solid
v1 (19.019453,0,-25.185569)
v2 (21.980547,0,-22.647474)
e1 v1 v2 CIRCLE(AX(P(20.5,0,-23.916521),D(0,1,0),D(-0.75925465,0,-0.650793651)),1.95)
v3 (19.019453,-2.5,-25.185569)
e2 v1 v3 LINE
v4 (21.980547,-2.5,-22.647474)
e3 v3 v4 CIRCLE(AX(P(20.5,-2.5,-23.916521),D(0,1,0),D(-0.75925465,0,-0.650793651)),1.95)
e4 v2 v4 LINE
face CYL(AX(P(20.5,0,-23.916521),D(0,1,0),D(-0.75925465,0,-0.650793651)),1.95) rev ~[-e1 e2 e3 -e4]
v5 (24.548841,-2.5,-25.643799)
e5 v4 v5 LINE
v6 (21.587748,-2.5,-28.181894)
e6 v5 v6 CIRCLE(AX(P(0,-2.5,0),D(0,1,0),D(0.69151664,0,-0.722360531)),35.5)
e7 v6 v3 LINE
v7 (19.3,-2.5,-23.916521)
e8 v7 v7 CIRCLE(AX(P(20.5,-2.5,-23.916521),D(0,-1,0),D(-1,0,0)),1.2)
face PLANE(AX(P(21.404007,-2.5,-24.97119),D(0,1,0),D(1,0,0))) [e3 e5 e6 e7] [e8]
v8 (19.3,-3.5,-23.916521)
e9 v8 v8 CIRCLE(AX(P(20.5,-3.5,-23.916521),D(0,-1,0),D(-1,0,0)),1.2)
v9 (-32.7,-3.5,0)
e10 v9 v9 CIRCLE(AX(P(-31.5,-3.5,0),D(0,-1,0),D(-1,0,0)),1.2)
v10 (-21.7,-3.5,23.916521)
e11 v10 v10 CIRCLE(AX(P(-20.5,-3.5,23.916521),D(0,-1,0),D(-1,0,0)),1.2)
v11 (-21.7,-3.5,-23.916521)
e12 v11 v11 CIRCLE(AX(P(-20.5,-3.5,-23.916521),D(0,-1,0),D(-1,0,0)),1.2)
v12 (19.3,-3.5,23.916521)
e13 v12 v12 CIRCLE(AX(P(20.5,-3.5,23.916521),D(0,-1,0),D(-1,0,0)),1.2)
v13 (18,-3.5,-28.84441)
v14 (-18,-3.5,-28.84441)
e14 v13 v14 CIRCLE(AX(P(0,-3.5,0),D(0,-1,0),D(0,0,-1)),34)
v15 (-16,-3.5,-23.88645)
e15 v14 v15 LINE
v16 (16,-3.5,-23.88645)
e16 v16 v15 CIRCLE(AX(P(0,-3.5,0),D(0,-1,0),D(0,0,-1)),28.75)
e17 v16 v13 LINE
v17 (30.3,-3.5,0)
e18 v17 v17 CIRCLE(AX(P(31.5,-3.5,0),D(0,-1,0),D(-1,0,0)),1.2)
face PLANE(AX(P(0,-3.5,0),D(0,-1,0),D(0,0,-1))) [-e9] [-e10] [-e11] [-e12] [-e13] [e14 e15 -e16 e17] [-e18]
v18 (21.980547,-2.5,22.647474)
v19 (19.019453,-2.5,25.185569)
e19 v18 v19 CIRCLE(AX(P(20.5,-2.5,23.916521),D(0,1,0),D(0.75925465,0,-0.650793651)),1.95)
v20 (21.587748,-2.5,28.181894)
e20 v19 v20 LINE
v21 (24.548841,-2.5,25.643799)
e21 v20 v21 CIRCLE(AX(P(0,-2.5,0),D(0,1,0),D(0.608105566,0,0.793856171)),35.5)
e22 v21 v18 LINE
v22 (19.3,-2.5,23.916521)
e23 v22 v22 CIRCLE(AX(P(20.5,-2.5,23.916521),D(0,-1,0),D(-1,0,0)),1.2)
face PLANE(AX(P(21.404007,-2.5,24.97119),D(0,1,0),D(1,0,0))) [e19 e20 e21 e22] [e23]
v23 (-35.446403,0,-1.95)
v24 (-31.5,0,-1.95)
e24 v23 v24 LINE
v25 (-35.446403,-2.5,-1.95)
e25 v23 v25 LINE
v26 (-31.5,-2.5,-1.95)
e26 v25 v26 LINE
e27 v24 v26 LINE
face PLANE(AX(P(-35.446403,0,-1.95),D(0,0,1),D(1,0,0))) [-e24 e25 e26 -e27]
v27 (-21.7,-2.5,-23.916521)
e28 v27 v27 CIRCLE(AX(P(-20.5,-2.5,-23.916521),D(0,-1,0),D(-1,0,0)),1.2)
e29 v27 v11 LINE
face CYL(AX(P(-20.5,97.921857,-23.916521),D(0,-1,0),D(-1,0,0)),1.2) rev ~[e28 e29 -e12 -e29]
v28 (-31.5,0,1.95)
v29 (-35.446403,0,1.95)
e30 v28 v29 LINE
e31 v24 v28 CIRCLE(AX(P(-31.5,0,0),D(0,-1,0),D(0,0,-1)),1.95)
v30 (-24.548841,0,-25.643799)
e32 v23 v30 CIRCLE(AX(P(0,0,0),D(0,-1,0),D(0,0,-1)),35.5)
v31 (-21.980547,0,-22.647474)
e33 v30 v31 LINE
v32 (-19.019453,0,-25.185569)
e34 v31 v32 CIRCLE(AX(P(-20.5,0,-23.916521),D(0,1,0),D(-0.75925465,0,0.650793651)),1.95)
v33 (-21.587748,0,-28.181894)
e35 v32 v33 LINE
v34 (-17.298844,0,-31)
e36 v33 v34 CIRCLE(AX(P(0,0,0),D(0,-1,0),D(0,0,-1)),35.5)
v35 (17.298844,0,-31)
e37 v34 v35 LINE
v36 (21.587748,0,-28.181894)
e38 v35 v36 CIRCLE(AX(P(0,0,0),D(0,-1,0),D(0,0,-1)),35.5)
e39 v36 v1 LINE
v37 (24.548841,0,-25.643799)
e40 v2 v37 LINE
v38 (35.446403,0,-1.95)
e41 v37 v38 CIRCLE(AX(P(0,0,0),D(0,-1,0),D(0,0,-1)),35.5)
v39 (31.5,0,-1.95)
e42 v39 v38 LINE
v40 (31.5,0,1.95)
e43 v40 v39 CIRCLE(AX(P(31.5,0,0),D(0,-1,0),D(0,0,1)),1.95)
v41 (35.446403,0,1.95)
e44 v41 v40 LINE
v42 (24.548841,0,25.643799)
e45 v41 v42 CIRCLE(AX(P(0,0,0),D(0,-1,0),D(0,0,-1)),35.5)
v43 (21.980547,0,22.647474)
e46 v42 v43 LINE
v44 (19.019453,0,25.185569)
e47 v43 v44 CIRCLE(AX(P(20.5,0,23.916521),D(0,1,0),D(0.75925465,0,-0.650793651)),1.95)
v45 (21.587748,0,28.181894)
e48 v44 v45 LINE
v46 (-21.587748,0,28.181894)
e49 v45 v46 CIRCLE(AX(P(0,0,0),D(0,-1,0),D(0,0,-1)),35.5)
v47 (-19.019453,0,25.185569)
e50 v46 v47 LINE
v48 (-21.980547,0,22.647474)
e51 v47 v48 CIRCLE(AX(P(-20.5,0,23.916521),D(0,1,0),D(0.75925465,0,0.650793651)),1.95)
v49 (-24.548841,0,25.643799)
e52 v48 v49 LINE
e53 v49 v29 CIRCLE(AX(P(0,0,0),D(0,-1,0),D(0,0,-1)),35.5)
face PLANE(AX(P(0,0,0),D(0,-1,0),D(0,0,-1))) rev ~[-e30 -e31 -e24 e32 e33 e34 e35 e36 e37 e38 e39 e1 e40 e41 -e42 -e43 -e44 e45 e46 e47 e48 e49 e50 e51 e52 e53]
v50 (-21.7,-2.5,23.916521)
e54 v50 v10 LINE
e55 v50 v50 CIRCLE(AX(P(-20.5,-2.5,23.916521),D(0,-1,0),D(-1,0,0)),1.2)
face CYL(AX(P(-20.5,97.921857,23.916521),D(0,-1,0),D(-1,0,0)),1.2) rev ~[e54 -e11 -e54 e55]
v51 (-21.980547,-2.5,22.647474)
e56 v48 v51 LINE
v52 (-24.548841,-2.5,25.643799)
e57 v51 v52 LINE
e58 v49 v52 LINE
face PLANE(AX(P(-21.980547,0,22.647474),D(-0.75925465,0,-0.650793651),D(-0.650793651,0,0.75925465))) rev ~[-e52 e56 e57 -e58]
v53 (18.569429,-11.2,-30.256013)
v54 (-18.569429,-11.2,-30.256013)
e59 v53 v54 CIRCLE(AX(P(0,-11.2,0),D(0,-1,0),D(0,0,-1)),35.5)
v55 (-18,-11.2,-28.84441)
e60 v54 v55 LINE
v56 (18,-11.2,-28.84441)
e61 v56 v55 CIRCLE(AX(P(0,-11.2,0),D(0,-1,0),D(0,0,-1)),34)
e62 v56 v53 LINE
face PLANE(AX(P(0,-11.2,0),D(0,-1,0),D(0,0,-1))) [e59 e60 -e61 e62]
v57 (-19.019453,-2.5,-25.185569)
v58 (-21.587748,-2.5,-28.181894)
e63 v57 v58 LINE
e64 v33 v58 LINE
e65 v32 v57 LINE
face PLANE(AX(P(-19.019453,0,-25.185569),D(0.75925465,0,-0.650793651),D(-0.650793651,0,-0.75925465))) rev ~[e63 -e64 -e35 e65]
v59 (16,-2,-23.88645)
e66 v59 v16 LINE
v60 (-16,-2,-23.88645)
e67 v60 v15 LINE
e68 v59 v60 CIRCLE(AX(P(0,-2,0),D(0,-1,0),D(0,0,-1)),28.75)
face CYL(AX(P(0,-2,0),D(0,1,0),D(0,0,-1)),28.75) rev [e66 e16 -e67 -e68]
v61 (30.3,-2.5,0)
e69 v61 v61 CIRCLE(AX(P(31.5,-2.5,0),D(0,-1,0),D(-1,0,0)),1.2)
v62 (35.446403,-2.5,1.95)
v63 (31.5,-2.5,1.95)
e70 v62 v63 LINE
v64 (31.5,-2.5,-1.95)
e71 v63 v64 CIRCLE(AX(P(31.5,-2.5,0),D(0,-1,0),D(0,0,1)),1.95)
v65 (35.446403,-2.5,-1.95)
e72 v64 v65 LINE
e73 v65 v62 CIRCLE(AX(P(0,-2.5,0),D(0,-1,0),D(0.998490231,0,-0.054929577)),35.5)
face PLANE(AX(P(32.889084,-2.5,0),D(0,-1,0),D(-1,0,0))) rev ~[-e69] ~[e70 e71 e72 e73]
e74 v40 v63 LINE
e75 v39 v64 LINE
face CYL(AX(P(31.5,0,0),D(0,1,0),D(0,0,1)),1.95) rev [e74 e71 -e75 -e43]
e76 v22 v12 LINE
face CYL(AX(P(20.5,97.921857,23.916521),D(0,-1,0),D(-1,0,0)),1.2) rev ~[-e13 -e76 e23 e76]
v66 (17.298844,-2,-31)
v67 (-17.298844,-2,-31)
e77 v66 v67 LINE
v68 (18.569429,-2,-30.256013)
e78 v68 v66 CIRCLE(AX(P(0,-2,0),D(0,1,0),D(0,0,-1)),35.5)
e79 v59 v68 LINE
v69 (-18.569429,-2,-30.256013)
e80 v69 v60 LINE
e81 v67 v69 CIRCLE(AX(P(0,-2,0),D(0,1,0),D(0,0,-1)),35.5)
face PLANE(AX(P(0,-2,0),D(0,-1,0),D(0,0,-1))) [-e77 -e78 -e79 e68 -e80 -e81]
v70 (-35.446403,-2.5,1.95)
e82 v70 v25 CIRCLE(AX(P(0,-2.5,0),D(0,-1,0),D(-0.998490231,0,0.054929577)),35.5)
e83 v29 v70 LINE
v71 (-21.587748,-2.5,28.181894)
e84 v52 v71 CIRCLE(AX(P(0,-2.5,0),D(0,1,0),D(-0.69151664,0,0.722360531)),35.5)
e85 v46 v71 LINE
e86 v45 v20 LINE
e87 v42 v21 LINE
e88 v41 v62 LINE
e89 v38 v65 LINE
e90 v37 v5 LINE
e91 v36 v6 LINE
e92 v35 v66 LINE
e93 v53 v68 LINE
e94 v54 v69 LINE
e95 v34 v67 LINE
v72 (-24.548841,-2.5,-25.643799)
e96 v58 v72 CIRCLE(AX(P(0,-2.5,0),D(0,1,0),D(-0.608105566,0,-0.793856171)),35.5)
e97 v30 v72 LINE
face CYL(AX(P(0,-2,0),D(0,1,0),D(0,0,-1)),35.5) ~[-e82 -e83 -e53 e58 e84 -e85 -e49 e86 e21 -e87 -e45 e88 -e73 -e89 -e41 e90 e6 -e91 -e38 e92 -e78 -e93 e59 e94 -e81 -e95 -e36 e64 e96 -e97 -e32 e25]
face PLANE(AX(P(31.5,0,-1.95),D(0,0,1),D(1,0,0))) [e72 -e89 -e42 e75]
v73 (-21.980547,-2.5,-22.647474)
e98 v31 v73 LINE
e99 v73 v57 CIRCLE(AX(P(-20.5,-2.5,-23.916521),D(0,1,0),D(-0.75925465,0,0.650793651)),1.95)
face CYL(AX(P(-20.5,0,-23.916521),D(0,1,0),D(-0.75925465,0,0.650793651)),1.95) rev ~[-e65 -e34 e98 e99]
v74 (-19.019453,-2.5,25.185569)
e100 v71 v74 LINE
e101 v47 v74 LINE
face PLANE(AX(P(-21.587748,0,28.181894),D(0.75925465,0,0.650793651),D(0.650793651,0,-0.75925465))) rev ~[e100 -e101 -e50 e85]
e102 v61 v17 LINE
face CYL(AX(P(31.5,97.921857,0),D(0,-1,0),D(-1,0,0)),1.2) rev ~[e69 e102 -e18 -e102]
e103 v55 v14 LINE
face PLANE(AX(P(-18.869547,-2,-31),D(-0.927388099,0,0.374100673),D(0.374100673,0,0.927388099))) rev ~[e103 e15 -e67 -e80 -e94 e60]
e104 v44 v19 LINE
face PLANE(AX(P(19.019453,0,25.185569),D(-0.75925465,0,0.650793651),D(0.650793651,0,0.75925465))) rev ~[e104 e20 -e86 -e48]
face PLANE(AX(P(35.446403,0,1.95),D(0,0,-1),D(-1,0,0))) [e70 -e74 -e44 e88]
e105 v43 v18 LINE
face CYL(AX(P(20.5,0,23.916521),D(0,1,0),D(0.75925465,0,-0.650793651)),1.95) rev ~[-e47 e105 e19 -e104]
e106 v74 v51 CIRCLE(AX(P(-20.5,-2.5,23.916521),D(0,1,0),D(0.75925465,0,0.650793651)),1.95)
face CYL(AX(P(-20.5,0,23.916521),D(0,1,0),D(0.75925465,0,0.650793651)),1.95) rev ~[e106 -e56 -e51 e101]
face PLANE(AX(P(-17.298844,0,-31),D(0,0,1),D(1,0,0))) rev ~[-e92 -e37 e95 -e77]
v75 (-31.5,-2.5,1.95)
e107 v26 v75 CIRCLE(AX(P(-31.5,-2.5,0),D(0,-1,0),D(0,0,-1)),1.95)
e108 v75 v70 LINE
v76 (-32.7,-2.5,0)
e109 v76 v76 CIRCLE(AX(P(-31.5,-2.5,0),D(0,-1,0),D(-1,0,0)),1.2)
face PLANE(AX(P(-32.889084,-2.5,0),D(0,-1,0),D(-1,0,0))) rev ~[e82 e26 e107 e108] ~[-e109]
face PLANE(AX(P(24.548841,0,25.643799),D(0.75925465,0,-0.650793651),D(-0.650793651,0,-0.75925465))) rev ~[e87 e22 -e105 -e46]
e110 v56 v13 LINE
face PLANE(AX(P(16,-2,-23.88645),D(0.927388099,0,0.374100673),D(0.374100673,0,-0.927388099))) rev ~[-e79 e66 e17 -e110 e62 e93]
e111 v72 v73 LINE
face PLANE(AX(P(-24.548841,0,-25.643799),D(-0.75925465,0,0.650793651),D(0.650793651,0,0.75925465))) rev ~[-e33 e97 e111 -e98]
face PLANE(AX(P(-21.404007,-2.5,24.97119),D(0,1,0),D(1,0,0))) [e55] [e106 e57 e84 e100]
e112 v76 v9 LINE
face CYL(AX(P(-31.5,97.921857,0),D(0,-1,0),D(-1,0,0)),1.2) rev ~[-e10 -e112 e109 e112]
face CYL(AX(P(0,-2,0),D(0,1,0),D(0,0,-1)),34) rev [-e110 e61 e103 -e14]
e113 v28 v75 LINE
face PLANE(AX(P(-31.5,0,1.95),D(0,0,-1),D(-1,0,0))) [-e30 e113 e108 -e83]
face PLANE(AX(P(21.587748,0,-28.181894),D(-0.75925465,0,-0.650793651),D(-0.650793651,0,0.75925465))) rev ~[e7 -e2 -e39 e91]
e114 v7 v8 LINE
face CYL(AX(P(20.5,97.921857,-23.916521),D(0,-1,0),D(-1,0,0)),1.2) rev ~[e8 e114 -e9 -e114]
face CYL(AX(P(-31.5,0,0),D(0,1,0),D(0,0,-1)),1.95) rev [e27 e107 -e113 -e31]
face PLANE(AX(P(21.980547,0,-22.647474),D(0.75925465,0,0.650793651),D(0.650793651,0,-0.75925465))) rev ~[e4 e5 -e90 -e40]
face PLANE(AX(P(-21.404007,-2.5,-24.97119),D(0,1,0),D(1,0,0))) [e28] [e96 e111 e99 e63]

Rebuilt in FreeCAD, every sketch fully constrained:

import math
import FreeCAD as App
import Part
import Sketcher
Q = App.Units.Quantity

doc = App.newDocument("Part")
body = doc.addObject("PartDesign::Body", "Body")

sketch1 = body.newObject("Sketcher::SketchObject", "Sketch")
sketch1.AttachmentSupport = (doc.getObject("XZ_Plane"), [""])
sketch1.MapMode = "FlatFace"
sketch1.addGeometry(Part.Circle(App.Vector(0, 0, 0), App.Vector(0, 0, 1), 36), False)
sketch1.addConstraint([
    Sketcher.Constraint("Coincident", 0, 3, -1, 1),
    Sketcher.Constraint("Diameter", 0, Q("71 mm")),
])
pad1 = body.newObject("PartDesign::Pad", "Pad")
pad1.Profile = sketch1
pad1.Length = 2

sketch2 = body.newObject("Sketcher::SketchObject", "Sketch001")
sketch2.AttachmentSupport = (doc.getObject("XZ_Plane"), [""])
sketch2.MapMode = "FlatFace"
sketch2.AttachmentOffset = App.Placement(App.Vector(0, 0, 2), App.Rotation())
sketch2.addGeometry([
    Part.Circle(App.Vector(0, 0, 0), App.Vector(0, 0, 1), 36),
    Part.Circle(App.Vector(0, 0, 0), App.Vector(0, 0, 1), 34),
], False)
sketch2.addConstraint([
    Sketcher.Constraint("Coincident", 0, 3, -1, 1),
    Sketcher.Constraint("Coincident", 1, 3, -1, 1),
    Sketcher.Constraint("Diameter", 0, Q("71 mm")),
    Sketcher.Constraint("Diameter", 1, Q("68 mm")),
])
pad2 = body.newObject("PartDesign::Pad", "Pad001")
pad2.Profile = sketch2
pad2.Length = 9.2

sketch3 = body.newObject("Sketcher::SketchObject", "Sketch002")
sketch3.AttachmentSupport = (doc.getObject("XZ_Plane"), [""])
sketch3.MapMode = "FlatFace"
sketch3.AttachmentOffset = App.Placement(App.Vector(0, 0, 2), App.Rotation())
sketch3.addGeometry([
    Part.Circle(App.Vector(0, 0, 0), App.Vector(0, 0, 1), 34),
    Part.Circle(App.Vector(0, 0, 0), App.Vector(0, 0, 1), 29),
], False)
sketch3.addConstraint([
    Sketcher.Constraint("Coincident", 0, 3, -1, 1),
    Sketcher.Constraint("Coincident", 1, 3, -1, 1),
    Sketcher.Constraint("Diameter", 0, Q("68 mm")),
    Sketcher.Constraint("Diameter", 1, Q("57.5 mm")),
])
pad3 = body.newObject("PartDesign::Pad", "Pad002")
pad3.Profile = sketch3
pad3.Length = 1.5

sketch4 = body.newObject("Sketcher::SketchObject", "Sketch003")
sketch4.AttachmentSupport = (doc.getObject("XZ_Plane"), [""])
sketch4.MapMode = "FlatFace"
sketch4.addGeometry([
    Part.LineSegment(App.Vector(-17, -31, 0), App.Vector(17, -31, 0)),
    Part.ArcOfCircle(Part.Circle(App.Vector(0, 0, 0), App.Vector(0, 0, 1), 36), math.radians(-119), math.radians(-61)),
], False)
sketch4.addConstraint([
    Sketcher.Constraint("Coincident", 0, 1, 1, 1),
    Sketcher.Constraint("Coincident", 1, 2, 0, 2),
    Sketcher.Constraint("Horizontal", 0),
    Sketcher.Constraint("Coincident", 1, 3, -1, 1),
    Sketcher.Constraint("Radius", 1, Q("35.5 mm")),
    Sketcher.Constraint("DistanceY", 0, 1, -1, 1, Q("31 mm")),
])
pocket1 = body.newObject("PartDesign::Pocket", "Pocket")
pocket1.Profile = sketch4
pocket1.Length = 11.2
pocket1.Reversed = True

sketch5 = body.newObject("Sketcher::SketchObject", "Sketch004")
sketch5.AttachmentSupport = (doc.getObject("XZ_Plane"), [""])
sketch5.MapMode = "FlatFace"
sketch5.AttachmentOffset = App.Placement(App.Vector(0, 0, 2), App.Rotation())
sketch5.addGeometry([
    Part.LineSegment(App.Vector(-16, -24, 0), App.Vector(-19, -31, 0)),
    Part.LineSegment(App.Vector(-19, -31, 0), App.Vector(19, -31, 0)),
    Part.LineSegment(App.Vector(19, -31, 0), App.Vector(16, -24, 0)),
    Part.LineSegment(App.Vector(16, -24, 0), App.Vector(-16, -24, 0)),
], False)
sketch5.addConstraint([
    Sketcher.Constraint("Coincident", 0, 2, 1, 1),
    Sketcher.Constraint("Coincident", 1, 2, 2, 1),
    Sketcher.Constraint("Coincident", 2, 2, 3, 1),
    Sketcher.Constraint("Coincident", 3, 2, 0, 1),
    Sketcher.Constraint("Horizontal", 1),
    Sketcher.Constraint("Horizontal", 3),
    Sketcher.Constraint("Equal", 0, 2),
    Sketcher.Constraint("DistanceX", 3, 2, 3, 1, Q("32 mm")),
    Sketcher.Constraint("DistanceY", 0, 2, -1, 1, Q("31 mm")),
    Sketcher.Constraint("DistanceX", -1, 1, 2, 2, Q("16 mm")),
    Sketcher.Constraint("Distance", 0, Q("7.670521 mm")),
    Sketcher.Constraint("DistanceX", 1, 1, 1, 2, Q("37.739094 mm")),
])
pocket2 = body.newObject("PartDesign::Pocket", "Pocket001")
pocket2.Profile = sketch5
pocket2.Length = 9.2
pocket2.Reversed = True

sketch6 = body.newObject("Sketcher::SketchObject", "Sketch005")
sketch6.AttachmentSupport = (doc.getObject("XZ_Plane"), [""])
sketch6.MapMode = "FlatFace"
sketch6.addGeometry([
    Part.Circle(App.Vector(-20.5, -23.9, 0), App.Vector(0, 0, 1), 1.2),
    Part.Circle(App.Vector(-31.5, 0, 0), App.Vector(0, 0, 1), 1.2),
    Part.Circle(App.Vector(-20.5, 23.9, 0), App.Vector(0, 0, 1), 1.2),
    Part.Circle(App.Vector(31.5, 0, 0), App.Vector(0, 0, 1), 1.2),
    Part.Circle(App.Vector(20.5, -23.9, 0), App.Vector(0, 0, 1), 1.2),
    Part.Circle(App.Vector(20.5, 23.9, 0), App.Vector(0, 0, 1), 1.2),
], False)
sketch6.addConstraint([
    Sketcher.Constraint("Equal", 0, 1),
    Sketcher.Constraint("Equal", 1, 2),
    Sketcher.Constraint("Equal", 2, 3),
    Sketcher.Constraint("Equal", 3, 4),
    Sketcher.Constraint("Equal", 4, 5),
    Sketcher.Constraint("Symmetric", 1, 3, 3, 3, -1, 1),
    Sketcher.Constraint("Symmetric", 2, 3, 4, 3, -1, 1),
    Sketcher.Constraint("Symmetric", 0, 3, 5, 3, -1, 1),
    Sketcher.Constraint("Symmetric", 0, 3, 4, 3, -2),
    Sketcher.Constraint("PointOnObject", 1, 3, -1),
    Sketcher.Constraint("Diameter", 0, Q("2.4 mm")),
    Sketcher.Constraint("DistanceX", 1, 3, 0, 3, Q("11 mm")),
    Sketcher.Constraint("DistanceX", 0, 3, 3, 3, Q("52 mm")),
    Sketcher.Constraint("DistanceY", 0, 3, -1, 1, Q("23.916521 mm")),
])
doc.recompute()
hole = body.newObject("PartDesign::Hole", "Hole")
hole.Profile = sketch6
hole.ThreadType = "None"
hole.Diameter = 2.4
hole.DepthType = "ThroughAll"
hole.Reversed = True

sketch7 = body.newObject("Sketcher::SketchObject", "Sketch006")
sketch7.AttachmentSupport = (doc.getObject("XZ_Plane"), [""])
sketch7.MapMode = "FlatFace"
sketch7.addGeometry([
    Part.LineSegment(App.Vector(-31.5, -1.9, 0), App.Vector(-35.4, -1.9, 0)),
    Part.ArcOfCircle(Part.Circle(App.Vector(0, 0, 0), App.Vector(0, 0, 1), 35.5), math.radians(176.85), math.radians(183.15)),
    Part.LineSegment(App.Vector(-35.4, 1.9, 0), App.Vector(-31.5, 1.9, 0)),
    Part.ArcOfCircle(Part.Circle(App.Vector(-31.5, 0, 0), App.Vector(0, 0, 1), 1.9), math.radians(-90), math.radians(90)),
    Part.Circle(App.Vector(-31.5, 0, 0), App.Vector(0, 0, 1), 1.2),
    Part.LineSegment(App.Vector(-24.5, -25.6, 0), App.Vector(-22, -22.6, 0)),
    Part.ArcOfCircle(Part.Circle(App.Vector(-20.5, -23.9, 0), App.Vector(0, 0, 1), 1.9), math.radians(-41), math.radians(139)),
    Part.LineSegment(App.Vector(-19, -25.2, 0), App.Vector(-21.6, -28.2, 0)),
    Part.ArcOfCircle(Part.Circle(App.Vector(0, 0, 0), App.Vector(0, 0, 1), 35.5), math.radians(-133.75), math.radians(-127.45)),
    Part.Circle(App.Vector(-20.5, -23.9, 0), App.Vector(0, 0, 1), 1.2),
    Part.LineSegment(App.Vector(-21.6, 28.2, 0), App.Vector(-19, 25.2, 0)),
    Part.ArcOfCircle(Part.Circle(App.Vector(-20.5, 23.9, 0), App.Vector(0, 0, 1), 1.9), math.radians(-139), math.radians(41)),
    Part.LineSegment(App.Vector(-22, 22.6, 0), App.Vector(-24.5, 25.6, 0)),
    Part.ArcOfCircle(Part.Circle(App.Vector(0, 0, 0), App.Vector(0, 0, 1), 35.5), math.radians(127.45), math.radians(133.75)),
    Part.Circle(App.Vector(-20.5, 23.9, 0), App.Vector(0, 0, 1), 1.2),
    Part.LineSegment(App.Vector(24.5, 25.6, 0), App.Vector(22, 22.6, 0)),
    Part.ArcOfCircle(Part.Circle(App.Vector(20.5, 23.9, 0), App.Vector(0, 0, 1), 1.9), math.radians(139), math.radians(319)),
    Part.LineSegment(App.Vector(19, 25.2, 0), App.Vector(21.6, 28.2, 0)),
    Part.ArcOfCircle(Part.Circle(App.Vector(0, 0, 0), App.Vector(0, 0, 1), 35.5), math.radians(46.25), math.radians(52.55)),
    Part.Circle(App.Vector(20.5, 23.9, 0), App.Vector(0, 0, 1), 1.2),
    Part.LineSegment(App.Vector(21.6, -28.2, 0), App.Vector(19, -25.2, 0)),
    Part.ArcOfCircle(Part.Circle(App.Vector(20.5, -23.9, 0), App.Vector(0, 0, 1), 1.9), math.radians(41), math.radians(221)),
    Part.LineSegment(App.Vector(22, -22.6, 0), App.Vector(24.5, -25.6, 0)),
    Part.ArcOfCircle(Part.Circle(App.Vector(0, 0, 0), App.Vector(0, 0, 1), 35.5), math.radians(-52.55), math.radians(-46.25)),
    Part.Circle(App.Vector(20.5, -23.9, 0), App.Vector(0, 0, 1), 1.2),
    Part.LineSegment(App.Vector(31.5, 1.9, 0), App.Vector(35.4, 1.9, 0)),
    Part.ArcOfCircle(Part.Circle(App.Vector(0, 0, 0), App.Vector(0, 0, 1), 35.5), math.radians(-3.15), math.radians(3.15)),
    Part.LineSegment(App.Vector(35.4, -1.9, 0), App.Vector(31.5, -1.9, 0)),
    Part.ArcOfCircle(Part.Circle(App.Vector(31.5, 0, 0), App.Vector(0, 0, 1), 1.9), math.radians(90), math.radians(270)),
    Part.Circle(App.Vector(31.5, 0, 0), App.Vector(0, 0, 1), 1.2),
], False)
sketch7.addConstraint([
    Sketcher.Constraint("Coincident", 0, 2, 1, 2),
    Sketcher.Constraint("Coincident", 1, 1, 2, 1),
    Sketcher.Constraint("Tangent", 2, 2, 3, 2),
    Sketcher.Constraint("Tangent", 3, 1, 0, 1),
    Sketcher.Constraint("Tangent", 5, 2, 6, 2),
    Sketcher.Constraint("Tangent", 6, 1, 7, 1),
    Sketcher.Constraint("Coincident", 7, 2, 8, 2),
    Sketcher.Constraint("Coincident", 8, 1, 5, 1),
    Sketcher.Constraint("Tangent", 10, 2, 11, 2),
    Sketcher.Constraint("Tangent", 11, 1, 12, 1),
    Sketcher.Constraint("Coincident", 12, 2, 13, 2),
    Sketcher.Constraint("Coincident", 13, 1, 10, 1),
    Sketcher.Constraint("Tangent", 15, 2, 16, 2),
    Sketcher.Constraint("Tangent", 16, 1, 17, 1),
    Sketcher.Constraint("Coincident", 17, 2, 18, 2),
    Sketcher.Constraint("Coincident", 18, 1, 15, 1),
    Sketcher.Constraint("Tangent", 20, 2, 21, 2),
    Sketcher.Constraint("Tangent", 21, 1, 22, 1),
    Sketcher.Constraint("Coincident", 22, 2, 23, 2),
    Sketcher.Constraint("Coincident", 23, 1, 20, 1),
    Sketcher.Constraint("Coincident", 25, 2, 26, 2),
    Sketcher.Constraint("Coincident", 26, 1, 27, 1),
    Sketcher.Constraint("Tangent", 27, 2, 28, 2),
    Sketcher.Constraint("Tangent", 28, 1, 25, 1),
    Sketcher.Constraint("Horizontal", 0),
    Sketcher.Constraint("Horizontal", 2),
    Sketcher.Constraint("Horizontal", 25),
    Sketcher.Constraint("Horizontal", 27),
    Sketcher.Constraint("Coincident", 1, 3, -1, 1),
    Sketcher.Constraint("Coincident", 8, 3, -1, 1),
    Sketcher.Constraint("Coincident", 13, 3, -1, 1),
    Sketcher.Constraint("Coincident", 18, 3, -1, 1),
    Sketcher.Constraint("Coincident", 23, 3, -1, 1),
    Sketcher.Constraint("Coincident", 26, 3, -1, 1),
    Sketcher.Constraint("Coincident", 4, 3, 3, 3),
    Sketcher.Constraint("Coincident", 9, 3, 6, 3),
    Sketcher.Constraint("Coincident", 14, 3, 11, 3),
    Sketcher.Constraint("Coincident", 19, 3, 16, 3),
    Sketcher.Constraint("Coincident", 24, 3, 21, 3),
    Sketcher.Constraint("Coincident", 29, 3, 28, 3),
    Sketcher.Constraint("Equal", 3, 6),
    Sketcher.Constraint("Equal", 1, 8),
    Sketcher.Constraint("Equal", 4, 9),
    Sketcher.Constraint("Equal", 6, 11),
    Sketcher.Constraint("Equal", 8, 13),
    Sketcher.Constraint("Equal", 9, 14),
    Sketcher.Constraint("Equal", 11, 16),
    Sketcher.Constraint("Equal", 13, 18),
    Sketcher.Constraint("Equal", 14, 19),
    Sketcher.Constraint("Equal", 16, 21),
    Sketcher.Constraint("Equal", 18, 23),
    Sketcher.Constraint("Equal", 19, 24),
    Sketcher.Constraint("Equal", 23, 26),
    Sketcher.Constraint("Equal", 21, 28),
    Sketcher.Constraint("Equal", 24, 29),
    Sketcher.Constraint("Symmetric", 6, 3, 16, 3, -1, 1),
    Sketcher.Constraint("Symmetric", 11, 3, 21, 3, -1, 1),
    Sketcher.Constraint("Symmetric", 3, 3, 28, 3, -1, 1),
    Sketcher.Constraint("Symmetric", 11, 3, 16, 3, -2),
    Sketcher.Constraint("PointOnObject", 3, 3, -1),
    Sketcher.Constraint("Parallel", 5, 7),
    Sketcher.Constraint("Parallel", 10, 12),
    Sketcher.Constraint("Parallel", 7, 15),
    Sketcher.Constraint("Parallel", 15, 17),
    Sketcher.Constraint("Parallel", 12, 20),
    Sketcher.Constraint("Parallel", 20, 22),
    Sketcher.Constraint("Horizontal", 11, 1, 15, 2),
    Sketcher.Constraint("Equal", 5, 7),
    Sketcher.Constraint("Diameter", 4, Q("2.4 mm")),
    Sketcher.Constraint("Radius", 1, Q("35.5 mm")),
    Sketcher.Constraint("Radius", 3, Q("1.95 mm")),
    Sketcher.Constraint("DistanceX", 3, 3, 6, 3, Q("11 mm")),
    Sketcher.Constraint("DistanceX", 11, 3, 16, 3, Q("41 mm")),
    Sketcher.Constraint("DistanceY", 8, 1, -1, 1, Q("25.643799 mm")),
])
pocket3 = body.newObject("PartDesign::Pocket", "Pocket002")
pocket3.Profile = sketch7
pocket3.Length = 2.5
pocket3.Reversed = True

doc.recompute()
